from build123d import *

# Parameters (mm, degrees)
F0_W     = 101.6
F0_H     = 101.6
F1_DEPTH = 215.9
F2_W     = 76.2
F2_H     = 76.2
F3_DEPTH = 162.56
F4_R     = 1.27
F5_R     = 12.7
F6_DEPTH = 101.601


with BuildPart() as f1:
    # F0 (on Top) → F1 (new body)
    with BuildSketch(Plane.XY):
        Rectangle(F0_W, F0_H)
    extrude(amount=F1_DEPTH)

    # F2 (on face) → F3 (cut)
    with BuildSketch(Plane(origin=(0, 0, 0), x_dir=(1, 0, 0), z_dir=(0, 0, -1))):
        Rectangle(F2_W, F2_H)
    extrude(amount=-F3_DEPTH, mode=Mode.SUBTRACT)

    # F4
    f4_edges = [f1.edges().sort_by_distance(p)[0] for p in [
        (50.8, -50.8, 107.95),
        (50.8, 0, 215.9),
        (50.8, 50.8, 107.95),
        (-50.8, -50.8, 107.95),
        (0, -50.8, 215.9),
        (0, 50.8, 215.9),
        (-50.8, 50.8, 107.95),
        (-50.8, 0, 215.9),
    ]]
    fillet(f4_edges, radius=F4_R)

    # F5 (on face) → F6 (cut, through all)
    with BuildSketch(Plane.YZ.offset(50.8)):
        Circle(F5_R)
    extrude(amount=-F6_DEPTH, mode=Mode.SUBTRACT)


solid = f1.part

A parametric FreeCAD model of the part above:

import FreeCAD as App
import Part
import Sketcher

V = App.Vector
Q = App.Units.Quantity


def edges_at(feature, points):
    """Names of the edges that pass closest to the given points."""
    edges = feature.Shape.Edges
    near = lambda p: min(range(len(edges)), key=lambda i: edges[i].distToShape(Part.Vertex(*p))[0])
    return sorted({f"Edge{near(p) + 1}" for p in points})

doc = App.newDocument("Part")
body = doc.addObject("PartDesign::Body", "Body")

# Sketch on XY plane
sketch1 = body.newObject("Sketcher::SketchObject", "Sketch")
sketch1.AttachmentSupport = (doc.getObject("XY_Plane"), [""])
sketch1.MapMode = "FlatFace"
sketch1.addGeometry(Part.LineSegment(V(-51, 51, 0), V(-51, -51, 0)), False)
sketch1.addGeometry(Part.LineSegment(V(-51, -51, 0), V(51, -51, 0)), False)
sketch1.addGeometry(Part.LineSegment(V(51, -51, 0), V(51, 51, 0)), False)
sketch1.addGeometry(Part.LineSegment(V(51, 51, 0), V(-51, 51, 0)), False)
sketch1.addConstraint(Sketcher.Constraint("Coincident", 0, 2, 1, 1))
sketch1.addConstraint(Sketcher.Constraint("Coincident", 1, 2, 2, 1))
sketch1.addConstraint(Sketcher.Constraint("Coincident", 2, 2, 3, 1))
sketch1.addConstraint(Sketcher.Constraint("Coincident", 3, 2, 0, 1))
sketch1.addConstraint(Sketcher.Constraint("Vertical", 0))
sketch1.addConstraint(Sketcher.Constraint("Horizontal", 1))
sketch1.addConstraint(Sketcher.Constraint("Vertical", 2))
sketch1.addConstraint(Sketcher.Constraint("Horizontal", 3))
sketch1.addConstraint(Sketcher.Constraint("Symmetric", 0, 2, 2, 2, -1, 1))
sketch1.addConstraint(Sketcher.Constraint("Equal", 3, 0))
sketch1.addConstraint(Sketcher.Constraint("DistanceX", 1, 1, 1, 2, Q("4 in")))
pad1 = body.newObject("PartDesign::Pad", "Pad")
pad1.Profile = sketch1
pad1.Length = Q("8.5 in")

# Sketch on XY plane
sketch2 = body.newObject("Sketcher::SketchObject", "Sketch001")
sketch2.AttachmentSupport = (doc.getObject("XY_Plane"), [""])
sketch2.MapMode = "FlatFace"
sketch2.addGeometry(Part.LineSegment(V(-38, -38, 0), V(-38, 38, 0)), False)
sketch2.addGeometry(Part.LineSegment(V(-38, 38, 0), V(38, 38, 0)), False)
sketch2.addGeometry(Part.LineSegment(V(38, 38, 0), V(38, -38, 0)), False)
sketch2.addGeometry(Part.LineSegment(V(38, -38, 0), V(-38, -38, 0)), False)
sketch2.addConstraint(Sketcher.Constraint("Coincident", 0, 2, 1, 1))
sketch2.addConstraint(Sketcher.Constraint("Coincident", 1, 2, 2, 1))
sketch2.addConstraint(Sketcher.Constraint("Coincident", 2, 2, 3, 1))
sketch2.addConstraint(Sketcher.Constraint("Coincident", 3, 2, 0, 1))
sketch2.addConstraint(Sketcher.Constraint("Vertical", 0))
sketch2.addConstraint(Sketcher.Constraint("Horizontal", 1))
sketch2.addConstraint(Sketcher.Constraint("Vertical", 2))
sketch2.addConstraint(Sketcher.Constraint("Horizontal", 3))
sketch2.addConstraint(Sketcher.Constraint("Symmetric", 0, 2, 2, 2, -1, 1))
sketch2.addConstraint(Sketcher.Constraint("Equal", 3, 0))
sketch2.addConstraint(Sketcher.Constraint("DistanceX", 1, 1, 1, 2, Q("3 in")))
pocket1 = body.newObject("PartDesign::Pocket", "Pocket")
pocket1.Profile = sketch2
pocket1.Length = Q("6.4 in")
pocket1.Reversed = True
doc.recompute()

fillet = body.newObject("PartDesign::Fillet", "Fillet")
fillet.Base = (pocket1, edges_at(pocket1, [
    (50.8, -50.8, 107.95),
    (50.8, 0, 215.9),
    (50.8, 50.8, 107.95),
    (-50.8, -50.8, 107.95),
    (0, -50.8, 215.9),
    (0, 50.8, 215.9),
    (-50.8, 50.8, 107.95),
    (-50.8, 0, 215.9),
]))
fillet.Radius = Q("0.05 in")

# Sketch on YZ plane
sketch3 = body.newObject("Sketcher::SketchObject", "Sketch002")
sketch3.AttachmentSupport = (doc.getObject("YZ_Plane"), [""])
sketch3.MapMode = "FlatFace"
sketch3.AttachmentOffset = App.Placement(V(0, 0, 2 * 25.4), App.Rotation())
sketch3.addGeometry(Part.Circle(V(0, 0, 0), V(0, 0, 1), 13), False)
sketch3.addConstraint(Sketcher.Constraint("Coincident", 0, 3, -1, 1))
sketch3.addConstraint(Sketcher.Constraint("Diameter", 0, Q("1 in")))
pocket2 = body.newObject("PartDesign::Pocket", "Pocket001")
pocket2.Profile = sketch3
pocket2.Type = "ThroughAll"

doc.recompute()
